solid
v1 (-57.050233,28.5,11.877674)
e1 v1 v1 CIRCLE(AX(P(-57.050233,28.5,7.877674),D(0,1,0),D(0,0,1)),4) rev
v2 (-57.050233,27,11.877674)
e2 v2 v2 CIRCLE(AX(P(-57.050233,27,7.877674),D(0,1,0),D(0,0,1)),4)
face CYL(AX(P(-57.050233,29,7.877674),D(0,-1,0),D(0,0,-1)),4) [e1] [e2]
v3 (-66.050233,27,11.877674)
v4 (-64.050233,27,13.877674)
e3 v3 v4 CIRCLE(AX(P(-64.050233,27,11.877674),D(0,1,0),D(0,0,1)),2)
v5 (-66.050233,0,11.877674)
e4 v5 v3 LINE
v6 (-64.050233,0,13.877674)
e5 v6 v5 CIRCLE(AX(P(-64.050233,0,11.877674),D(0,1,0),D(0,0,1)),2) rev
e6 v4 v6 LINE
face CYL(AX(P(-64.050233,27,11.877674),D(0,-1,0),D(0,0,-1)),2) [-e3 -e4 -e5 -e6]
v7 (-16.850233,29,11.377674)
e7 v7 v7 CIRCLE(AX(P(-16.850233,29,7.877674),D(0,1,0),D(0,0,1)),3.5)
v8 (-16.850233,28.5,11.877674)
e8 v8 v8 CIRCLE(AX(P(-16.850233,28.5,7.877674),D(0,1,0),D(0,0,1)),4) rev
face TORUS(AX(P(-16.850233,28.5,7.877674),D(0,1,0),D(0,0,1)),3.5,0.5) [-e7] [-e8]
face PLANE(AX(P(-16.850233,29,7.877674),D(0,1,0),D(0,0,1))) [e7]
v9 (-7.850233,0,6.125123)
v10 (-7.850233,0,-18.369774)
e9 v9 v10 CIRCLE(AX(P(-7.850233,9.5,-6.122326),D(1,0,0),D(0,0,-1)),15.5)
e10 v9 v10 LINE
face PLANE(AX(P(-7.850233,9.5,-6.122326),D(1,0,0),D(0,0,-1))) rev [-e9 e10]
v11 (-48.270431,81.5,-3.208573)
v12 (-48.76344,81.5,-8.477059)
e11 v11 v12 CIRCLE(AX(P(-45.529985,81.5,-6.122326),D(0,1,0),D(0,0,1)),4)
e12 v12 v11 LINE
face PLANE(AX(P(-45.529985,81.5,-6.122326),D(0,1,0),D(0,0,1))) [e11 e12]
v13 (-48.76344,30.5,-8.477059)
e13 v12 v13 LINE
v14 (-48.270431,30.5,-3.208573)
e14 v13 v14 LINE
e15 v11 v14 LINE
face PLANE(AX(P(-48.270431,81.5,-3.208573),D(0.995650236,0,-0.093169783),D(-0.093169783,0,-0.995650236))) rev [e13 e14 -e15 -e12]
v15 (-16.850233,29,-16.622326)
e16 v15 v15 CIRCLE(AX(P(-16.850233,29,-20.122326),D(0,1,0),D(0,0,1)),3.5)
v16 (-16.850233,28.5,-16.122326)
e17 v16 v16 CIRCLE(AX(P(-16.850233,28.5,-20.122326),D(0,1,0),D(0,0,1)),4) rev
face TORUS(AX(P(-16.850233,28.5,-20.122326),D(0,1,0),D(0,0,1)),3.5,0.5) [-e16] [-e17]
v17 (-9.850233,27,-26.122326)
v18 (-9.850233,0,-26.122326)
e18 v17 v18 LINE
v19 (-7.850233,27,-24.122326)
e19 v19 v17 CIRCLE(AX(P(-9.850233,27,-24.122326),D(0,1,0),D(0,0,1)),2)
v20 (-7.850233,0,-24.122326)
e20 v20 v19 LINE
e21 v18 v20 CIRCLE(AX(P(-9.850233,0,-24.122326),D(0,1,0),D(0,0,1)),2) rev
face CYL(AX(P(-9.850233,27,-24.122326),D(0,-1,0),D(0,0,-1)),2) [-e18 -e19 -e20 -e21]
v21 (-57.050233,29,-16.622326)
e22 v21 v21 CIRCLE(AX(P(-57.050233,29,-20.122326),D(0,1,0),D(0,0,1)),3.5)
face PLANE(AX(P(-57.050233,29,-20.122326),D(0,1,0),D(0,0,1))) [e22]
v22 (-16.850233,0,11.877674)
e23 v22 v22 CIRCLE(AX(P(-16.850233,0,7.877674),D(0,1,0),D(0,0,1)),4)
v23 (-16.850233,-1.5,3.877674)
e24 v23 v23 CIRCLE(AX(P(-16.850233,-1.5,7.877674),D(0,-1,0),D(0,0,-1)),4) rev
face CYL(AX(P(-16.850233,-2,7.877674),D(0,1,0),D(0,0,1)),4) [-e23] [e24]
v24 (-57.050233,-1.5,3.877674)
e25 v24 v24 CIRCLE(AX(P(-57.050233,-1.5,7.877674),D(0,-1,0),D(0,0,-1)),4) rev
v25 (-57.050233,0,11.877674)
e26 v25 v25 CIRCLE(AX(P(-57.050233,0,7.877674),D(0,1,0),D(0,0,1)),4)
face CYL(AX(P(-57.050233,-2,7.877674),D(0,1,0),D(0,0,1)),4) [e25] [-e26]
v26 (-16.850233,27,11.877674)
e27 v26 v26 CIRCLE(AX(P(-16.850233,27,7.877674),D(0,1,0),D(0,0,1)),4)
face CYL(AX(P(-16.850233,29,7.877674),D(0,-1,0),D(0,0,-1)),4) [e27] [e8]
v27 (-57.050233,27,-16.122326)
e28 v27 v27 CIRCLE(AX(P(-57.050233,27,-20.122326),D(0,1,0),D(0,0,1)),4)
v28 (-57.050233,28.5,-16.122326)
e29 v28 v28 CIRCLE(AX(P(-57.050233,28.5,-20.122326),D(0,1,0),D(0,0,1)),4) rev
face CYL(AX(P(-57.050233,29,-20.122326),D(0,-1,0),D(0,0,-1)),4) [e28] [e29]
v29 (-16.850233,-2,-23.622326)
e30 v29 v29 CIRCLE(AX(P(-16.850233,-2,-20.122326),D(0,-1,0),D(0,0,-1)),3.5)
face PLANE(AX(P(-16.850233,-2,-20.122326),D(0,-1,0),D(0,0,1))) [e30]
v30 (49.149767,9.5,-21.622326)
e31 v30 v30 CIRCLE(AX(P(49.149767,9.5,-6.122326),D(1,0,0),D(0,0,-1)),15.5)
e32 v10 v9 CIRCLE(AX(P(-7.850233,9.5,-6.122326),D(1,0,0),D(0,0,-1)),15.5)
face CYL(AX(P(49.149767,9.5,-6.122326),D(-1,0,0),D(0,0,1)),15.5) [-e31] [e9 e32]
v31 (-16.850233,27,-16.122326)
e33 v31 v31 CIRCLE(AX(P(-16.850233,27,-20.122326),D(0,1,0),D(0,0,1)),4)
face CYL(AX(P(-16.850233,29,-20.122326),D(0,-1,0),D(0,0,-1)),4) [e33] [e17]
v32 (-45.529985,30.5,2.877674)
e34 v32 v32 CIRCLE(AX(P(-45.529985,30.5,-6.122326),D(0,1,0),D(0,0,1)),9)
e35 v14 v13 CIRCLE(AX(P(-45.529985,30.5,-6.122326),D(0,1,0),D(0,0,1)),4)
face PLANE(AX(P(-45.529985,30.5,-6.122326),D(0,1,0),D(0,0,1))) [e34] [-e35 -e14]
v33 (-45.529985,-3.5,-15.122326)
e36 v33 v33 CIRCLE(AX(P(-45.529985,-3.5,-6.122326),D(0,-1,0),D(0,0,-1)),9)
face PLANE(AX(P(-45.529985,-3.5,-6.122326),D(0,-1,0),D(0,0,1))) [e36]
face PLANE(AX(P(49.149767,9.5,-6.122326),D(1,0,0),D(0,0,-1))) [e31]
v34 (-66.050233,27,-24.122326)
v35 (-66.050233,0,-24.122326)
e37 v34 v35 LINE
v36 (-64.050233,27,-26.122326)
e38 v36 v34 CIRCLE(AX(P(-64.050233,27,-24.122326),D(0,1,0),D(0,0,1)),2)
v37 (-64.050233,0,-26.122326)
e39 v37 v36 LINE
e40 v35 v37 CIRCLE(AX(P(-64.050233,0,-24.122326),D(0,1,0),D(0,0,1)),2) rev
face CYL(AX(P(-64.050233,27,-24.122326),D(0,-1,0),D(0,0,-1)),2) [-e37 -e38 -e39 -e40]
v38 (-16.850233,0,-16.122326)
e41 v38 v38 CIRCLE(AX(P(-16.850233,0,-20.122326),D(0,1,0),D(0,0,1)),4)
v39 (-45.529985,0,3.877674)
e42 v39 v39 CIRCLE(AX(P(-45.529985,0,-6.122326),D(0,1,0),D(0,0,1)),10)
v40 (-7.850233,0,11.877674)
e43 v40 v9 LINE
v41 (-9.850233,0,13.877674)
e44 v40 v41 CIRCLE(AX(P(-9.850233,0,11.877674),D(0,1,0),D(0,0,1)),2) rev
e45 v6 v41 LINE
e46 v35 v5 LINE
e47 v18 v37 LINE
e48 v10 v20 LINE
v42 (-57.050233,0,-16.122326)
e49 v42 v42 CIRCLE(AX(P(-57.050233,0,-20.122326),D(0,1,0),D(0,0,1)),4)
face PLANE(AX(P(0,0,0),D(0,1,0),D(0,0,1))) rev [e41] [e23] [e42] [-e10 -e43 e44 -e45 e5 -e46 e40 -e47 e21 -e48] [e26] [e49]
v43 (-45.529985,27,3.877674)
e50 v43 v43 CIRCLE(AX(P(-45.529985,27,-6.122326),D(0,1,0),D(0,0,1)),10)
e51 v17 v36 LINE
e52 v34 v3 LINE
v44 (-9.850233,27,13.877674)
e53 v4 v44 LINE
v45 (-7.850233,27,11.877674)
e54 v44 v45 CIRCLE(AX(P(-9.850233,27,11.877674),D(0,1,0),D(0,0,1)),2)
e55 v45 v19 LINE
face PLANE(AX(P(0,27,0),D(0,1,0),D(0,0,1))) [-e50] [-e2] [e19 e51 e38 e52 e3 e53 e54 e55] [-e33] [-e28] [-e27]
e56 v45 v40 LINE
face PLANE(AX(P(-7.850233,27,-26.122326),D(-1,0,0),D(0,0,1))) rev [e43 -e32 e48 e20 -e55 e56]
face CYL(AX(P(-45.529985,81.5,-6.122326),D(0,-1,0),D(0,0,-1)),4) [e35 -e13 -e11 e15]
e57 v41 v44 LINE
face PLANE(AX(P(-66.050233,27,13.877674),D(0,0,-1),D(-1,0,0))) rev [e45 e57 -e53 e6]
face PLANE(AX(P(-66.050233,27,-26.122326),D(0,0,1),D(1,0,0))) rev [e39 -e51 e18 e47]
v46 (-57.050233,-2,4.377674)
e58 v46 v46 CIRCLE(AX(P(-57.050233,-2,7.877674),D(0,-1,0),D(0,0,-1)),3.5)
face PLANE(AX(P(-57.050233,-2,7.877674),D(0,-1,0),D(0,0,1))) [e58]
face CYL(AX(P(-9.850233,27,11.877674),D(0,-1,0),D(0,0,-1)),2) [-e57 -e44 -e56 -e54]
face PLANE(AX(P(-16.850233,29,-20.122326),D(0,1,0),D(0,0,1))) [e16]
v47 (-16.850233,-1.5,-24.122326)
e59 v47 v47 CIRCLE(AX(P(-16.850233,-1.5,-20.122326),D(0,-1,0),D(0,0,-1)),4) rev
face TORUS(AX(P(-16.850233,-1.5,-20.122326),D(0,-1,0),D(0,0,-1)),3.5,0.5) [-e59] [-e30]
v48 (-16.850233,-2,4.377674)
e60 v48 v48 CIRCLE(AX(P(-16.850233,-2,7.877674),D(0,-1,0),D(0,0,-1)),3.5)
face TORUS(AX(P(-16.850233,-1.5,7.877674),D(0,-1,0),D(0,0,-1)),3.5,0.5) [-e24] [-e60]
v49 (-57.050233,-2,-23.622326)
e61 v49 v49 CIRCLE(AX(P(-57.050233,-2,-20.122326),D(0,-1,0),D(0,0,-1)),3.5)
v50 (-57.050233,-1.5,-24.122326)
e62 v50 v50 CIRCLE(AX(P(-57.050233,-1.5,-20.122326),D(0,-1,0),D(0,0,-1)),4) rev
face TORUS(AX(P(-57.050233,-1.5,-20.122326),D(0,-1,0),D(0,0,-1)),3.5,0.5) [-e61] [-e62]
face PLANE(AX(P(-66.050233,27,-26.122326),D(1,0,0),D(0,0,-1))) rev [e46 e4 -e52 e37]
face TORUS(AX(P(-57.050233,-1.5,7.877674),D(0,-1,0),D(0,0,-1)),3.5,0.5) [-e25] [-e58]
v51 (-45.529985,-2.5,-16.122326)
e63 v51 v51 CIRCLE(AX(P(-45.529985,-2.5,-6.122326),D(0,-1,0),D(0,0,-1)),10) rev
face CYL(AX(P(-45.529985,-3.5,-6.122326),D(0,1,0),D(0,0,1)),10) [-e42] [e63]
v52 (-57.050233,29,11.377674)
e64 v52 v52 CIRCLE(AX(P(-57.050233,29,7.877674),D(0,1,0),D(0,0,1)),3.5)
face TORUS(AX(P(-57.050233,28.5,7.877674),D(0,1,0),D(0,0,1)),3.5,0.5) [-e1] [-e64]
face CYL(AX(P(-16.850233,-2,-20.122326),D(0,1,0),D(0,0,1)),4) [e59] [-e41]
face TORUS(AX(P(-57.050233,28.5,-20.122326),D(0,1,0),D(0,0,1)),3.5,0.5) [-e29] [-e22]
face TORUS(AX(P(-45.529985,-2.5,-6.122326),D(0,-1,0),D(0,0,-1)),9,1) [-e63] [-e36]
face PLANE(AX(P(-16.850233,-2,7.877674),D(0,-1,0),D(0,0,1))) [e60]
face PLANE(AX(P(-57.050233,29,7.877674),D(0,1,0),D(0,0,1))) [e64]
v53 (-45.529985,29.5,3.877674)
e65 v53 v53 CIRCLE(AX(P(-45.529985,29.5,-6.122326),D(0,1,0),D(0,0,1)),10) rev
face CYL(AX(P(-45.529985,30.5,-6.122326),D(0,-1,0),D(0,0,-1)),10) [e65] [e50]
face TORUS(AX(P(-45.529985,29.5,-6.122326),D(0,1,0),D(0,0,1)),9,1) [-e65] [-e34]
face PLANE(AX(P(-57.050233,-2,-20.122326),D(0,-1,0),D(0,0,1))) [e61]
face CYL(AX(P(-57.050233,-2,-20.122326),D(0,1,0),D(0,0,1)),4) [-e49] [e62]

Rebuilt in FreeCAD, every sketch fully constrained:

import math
import FreeCAD as App
import Part
import Sketcher

V = App.Vector
Q = App.Units.Quantity


def edges_at(feature, points):
    """Names of the edges that pass closest to the given points."""
    edges = feature.Shape.Edges
    near = lambda p: min(range(len(edges)), key=lambda i: edges[i].distToShape(Part.Vertex(*p))[0])
    return sorted({f"Edge{near(p) + 1}" for p in points})


def add_polygon(sketch, points):
    """Adds a closed chain of lines whose ends are joined by coincident constraints."""
    first, n = sketch.GeometryCount, len(points)
    for a, b in zip(points, points[1:] + points[:1]):
        sketch.addGeometry(Part.LineSegment(App.Vector(*a, 0), App.Vector(*b, 0)), False)
    for i in range(n):
        sketch.addConstraint(Sketcher.Constraint("Coincident", first + i, 2, first + (i + 1) % n, 1))

doc = App.newDocument("Part")
body = doc.addObject("PartDesign::Body", "Body")

sketch1 = body.newObject("Sketcher::SketchObject", "Sketch")
sketch1.AttachmentSupport = (doc.getObject("XZ_Plane"), [""])
sketch1.MapMode = "FlatFace"
add_polygon(sketch1, [(-66, -26), (-66, 14), (-8, 14), (-8, -26)])
sketch1.addConstraint(Sketcher.Constraint("Vertical", 0))
sketch1.addConstraint(Sketcher.Constraint("Horizontal", 1))
sketch1.addConstraint(Sketcher.Constraint("Vertical", 2))
sketch1.addConstraint(Sketcher.Constraint("Horizontal", 3))
sketch1.addConstraint(Sketcher.Constraint("DistanceY", 0, 1, 0, 2, Q("40 mm")))
sketch1.addConstraint(Sketcher.Constraint("DistanceX", 1, 1, 1, 2, Q("58.2 mm")))
sketch1.addConstraint(Sketcher.Constraint("DistanceX", 0, 2, -1, 1, Q("66.050233 mm")))
sketch1.addConstraint(Sketcher.Constraint("DistanceY", -1, 1, 0, 2, Q("13.877674 mm")))
pad1 = body.newObject("PartDesign::Pad", "Pad")
pad1.Profile = sketch1
pad1.Length = 27
pad1.Reversed = True
doc.recompute()

fillet = body.newObject("PartDesign::Fillet", "Fillet")
fillet.Base = (pad1, edges_at(pad1, [
    (-66.05, 13.5, -26.122),
    (-7.85, 13.5, -26.122),
    (-7.85, 13.5, 13.878),
    (-66.05, 13.5, 13.878),
]))
fillet.Radius = 2

sketch2 = body.newObject("Sketcher::SketchObject", "Sketch001")
sketch2.AttachmentSupport = (doc.getObject("YZ_Plane"), [""])
sketch2.MapMode = "FlatFace"
sketch2.AttachmentOffset = App.Placement(V(0, 0, -7.850233), App.Rotation())
sketch2.addGeometry(Part.Circle(V(10, -6, 0), V(0, 0, 1), 16), False)
sketch2.addConstraint(Sketcher.Constraint("Diameter", 0, Q("31 mm")))
sketch2.addConstraint(Sketcher.Constraint("DistanceX", -1, 1, 0, 3, Q("9.5 mm")))
sketch2.addConstraint(Sketcher.Constraint("DistanceY", 0, 3, -1, 1, Q("6.122326 mm")))
pad2 = body.newObject("PartDesign::Pad", "Pad001")
pad2.Profile = sketch2
pad2.Length = 57

sketch3 = body.newObject("Sketcher::SketchObject", "Sketch002")
sketch3.AttachmentSupport = (doc.getObject("XZ_Plane"), [""])
sketch3.MapMode = "FlatFace"
sketch3.AttachmentOffset = App.Placement(V(0, 0, -27), App.Rotation())
sketch3.addGeometry(Part.Circle(V(-16.9, 7.9, 0), V(0, 0, 1), 4), False)
sketch3.addGeometry(Part.Circle(V(-16.9, -20.1, 0), V(0, 0, 1), 4), False)
sketch3.addGeometry(Part.Circle(V(-57.1, 7.9, 0), V(0, 0, 1), 4), False)
sketch3.addGeometry(Part.Circle(V(-57.1, -20.1, 0), V(0, 0, 1), 4), False)
sketch3.addConstraint(Sketcher.Constraint("Equal", 0, 1))
sketch3.addConstraint(Sketcher.Constraint("Equal", 1, 2))
sketch3.addConstraint(Sketcher.Constraint("Equal", 2, 3))
sketch3.addConstraint(Sketcher.Constraint("Horizontal", 0, 3, 2, 3))
sketch3.addConstraint(Sketcher.Constraint("Horizontal", 1, 3, 3, 3))
sketch3.addConstraint(Sketcher.Constraint("Vertical", 0, 3, 1, 3))
sketch3.addConstraint(Sketcher.Constraint("Vertical", 2, 3, 3, 3))
sketch3.addConstraint(Sketcher.Constraint("Diameter", 0, Q("8 mm")))
sketch3.addConstraint(Sketcher.Constraint("DistanceY", 1, 3, 0, 3, Q("28 mm")))
sketch3.addConstraint(Sketcher.Constraint("DistanceX", 2, 3, 0, 3, Q("40.2 mm")))
sketch3.addConstraint(Sketcher.Constraint("DistanceX", 0, 3, -1, 1, Q("16.850233 mm")))
sketch3.addConstraint(Sketcher.Constraint("DistanceY", -1, 1, 0, 3, Q("7.877674 mm")))
pad3 = body.newObject("PartDesign::Pad", "Pad002")
pad3.Profile = sketch3
pad3.Length = 2
pad3.Reversed = True

sketch4 = body.newObject("Sketcher::SketchObject", "Sketch003")
sketch4.AttachmentSupport = (doc.getObject("XZ_Plane"), [""])
sketch4.MapMode = "FlatFace"
sketch4.AttachmentOffset = App.Placement(V(0, 0, -27), App.Rotation())
sketch4.addGeometry(Part.Circle(V(-46, -6, 0), V(0, 0, 1), 10), False)
sketch4.addConstraint(Sketcher.Constraint("Diameter", 0, Q("20 mm")))
sketch4.addConstraint(Sketcher.Constraint("DistanceX", 0, 3, -1, 1, Q("45.529985 mm")))
sketch4.addConstraint(Sketcher.Constraint("DistanceY", 0, 3, -1, 1, Q("6.122326 mm")))
pad4 = body.newObject("PartDesign::Pad", "Pad003")
pad4.Profile = sketch4
pad4.Length = 3.5
pad4.Reversed = True
doc.recompute()

datumplane = body.newObject("PartDesign::Plane", "DatumPlane")
datumplane.AttachmentSupport = (doc.getObject("XZ_Plane"), [""])
datumplane.MapMode = "FlatFace"
datumplane.AttachmentOffset = App.Placement(V(0, 0, -13.5), App.Rotation())
mirrored = body.newObject("PartDesign::Mirrored", "Mirrored")
mirrored.Originals = [pad3, pad4]
mirrored.MirrorPlane = (datumplane, [""])
body.Tip = mirrored
doc.recompute()

fillet2 = body.newObject("PartDesign::Fillet", "Fillet001")
fillet2.Base = (mirrored, edges_at(mirrored, [
    (-16.85, 29, 3.878),
    (-16.85, 29, -24.122),
    (-57.05, 29, 3.878),
    (-57.05, 29, -24.122),
]))
fillet2.Radius = 0.5
doc.recompute()

fillet3 = body.newObject("PartDesign::Fillet", "Fillet002")
fillet3.Base = (fillet2, edges_at(fillet2, [(-45.53, 30.5, -16.122)]))
fillet3.Radius = 1
doc.recompute()

datumplane2 = body.newObject("PartDesign::Plane", "DatumPlane001")
datumplane2.AttachmentSupport = (doc.getObject("XZ_Plane"), [""])
datumplane2.MapMode = "FlatFace"
datumplane2.AttachmentOffset = App.Placement(V(0, 0, -13.5), App.Rotation())
mirrored2 = body.newObject("PartDesign::Mirrored", "Mirrored001")
mirrored2.Originals = [pad3, pad4]
mirrored2.MirrorPlane = (datumplane2, [""])
body.Tip = mirrored2
doc.recompute()

fillet4 = body.newObject("PartDesign::Fillet", "Fillet003")
fillet4.Base = (mirrored2, edges_at(mirrored2, [
    (-16.85, -2, 3.878),
    (-16.85, -2, -24.122),
    (-57.05, -2, 3.878),
    (-57.05, -2, -24.122),
]))
fillet4.Radius = 0.5
doc.recompute()

fillet5 = body.newObject("PartDesign::Fillet", "Fillet004")
fillet5.Base = (fillet4, edges_at(fillet4, [(-45.53, -3.5, -16.122)]))
fillet5.Radius = 1

sketch5 = body.newObject("Sketcher::SketchObject", "Sketch004")
sketch5.AttachmentSupport = (doc.getObject("XZ_Plane"), [""])
sketch5.MapMode = "FlatFace"
sketch5.AttachmentOffset = App.Placement(V(0, 0, -30.5), App.Rotation())
sketch5.addGeometry(Part.LineSegment(V(-48.8, -8.5, 0), V(-48.3, -3.2, 0)), False)
sketch5.addGeometry(Part.ArcOfCircle(Part.Circle(V(-45.5, -6.1, 0), V(0, 0, 1), 4), math.radians(-144), math.radians(133)), False)
sketch5.addConstraint(Sketcher.Constraint("Coincident", 0, 1, 1, 1))
sketch5.addConstraint(Sketcher.Constraint("Coincident", 1, 2, 0, 2))
sketch5.addConstraint(Sketcher.Constraint("Radius", 1, Q("4 mm")))
sketch5.addConstraint(Sketcher.Constraint("DistanceX", 0, 1, -1, 1, Q("48.76344 mm")))
sketch5.addConstraint(Sketcher.Constraint("DistanceY", 0, 1, -1, 1, Q("8.477059 mm")))
sketch5.addConstraint(Sketcher.Constraint("DistanceX", 1, 2, -1, 1, Q("48.270431 mm")))
sketch5.addConstraint(Sketcher.Constraint("Distance", 0, Q("5.291503 mm")))
pad5 = body.newObject("PartDesign::Pad", "Pad004")
pad5.Profile = sketch5
pad5.Length = 51
pad5.Reversed = True

doc.recompute()
